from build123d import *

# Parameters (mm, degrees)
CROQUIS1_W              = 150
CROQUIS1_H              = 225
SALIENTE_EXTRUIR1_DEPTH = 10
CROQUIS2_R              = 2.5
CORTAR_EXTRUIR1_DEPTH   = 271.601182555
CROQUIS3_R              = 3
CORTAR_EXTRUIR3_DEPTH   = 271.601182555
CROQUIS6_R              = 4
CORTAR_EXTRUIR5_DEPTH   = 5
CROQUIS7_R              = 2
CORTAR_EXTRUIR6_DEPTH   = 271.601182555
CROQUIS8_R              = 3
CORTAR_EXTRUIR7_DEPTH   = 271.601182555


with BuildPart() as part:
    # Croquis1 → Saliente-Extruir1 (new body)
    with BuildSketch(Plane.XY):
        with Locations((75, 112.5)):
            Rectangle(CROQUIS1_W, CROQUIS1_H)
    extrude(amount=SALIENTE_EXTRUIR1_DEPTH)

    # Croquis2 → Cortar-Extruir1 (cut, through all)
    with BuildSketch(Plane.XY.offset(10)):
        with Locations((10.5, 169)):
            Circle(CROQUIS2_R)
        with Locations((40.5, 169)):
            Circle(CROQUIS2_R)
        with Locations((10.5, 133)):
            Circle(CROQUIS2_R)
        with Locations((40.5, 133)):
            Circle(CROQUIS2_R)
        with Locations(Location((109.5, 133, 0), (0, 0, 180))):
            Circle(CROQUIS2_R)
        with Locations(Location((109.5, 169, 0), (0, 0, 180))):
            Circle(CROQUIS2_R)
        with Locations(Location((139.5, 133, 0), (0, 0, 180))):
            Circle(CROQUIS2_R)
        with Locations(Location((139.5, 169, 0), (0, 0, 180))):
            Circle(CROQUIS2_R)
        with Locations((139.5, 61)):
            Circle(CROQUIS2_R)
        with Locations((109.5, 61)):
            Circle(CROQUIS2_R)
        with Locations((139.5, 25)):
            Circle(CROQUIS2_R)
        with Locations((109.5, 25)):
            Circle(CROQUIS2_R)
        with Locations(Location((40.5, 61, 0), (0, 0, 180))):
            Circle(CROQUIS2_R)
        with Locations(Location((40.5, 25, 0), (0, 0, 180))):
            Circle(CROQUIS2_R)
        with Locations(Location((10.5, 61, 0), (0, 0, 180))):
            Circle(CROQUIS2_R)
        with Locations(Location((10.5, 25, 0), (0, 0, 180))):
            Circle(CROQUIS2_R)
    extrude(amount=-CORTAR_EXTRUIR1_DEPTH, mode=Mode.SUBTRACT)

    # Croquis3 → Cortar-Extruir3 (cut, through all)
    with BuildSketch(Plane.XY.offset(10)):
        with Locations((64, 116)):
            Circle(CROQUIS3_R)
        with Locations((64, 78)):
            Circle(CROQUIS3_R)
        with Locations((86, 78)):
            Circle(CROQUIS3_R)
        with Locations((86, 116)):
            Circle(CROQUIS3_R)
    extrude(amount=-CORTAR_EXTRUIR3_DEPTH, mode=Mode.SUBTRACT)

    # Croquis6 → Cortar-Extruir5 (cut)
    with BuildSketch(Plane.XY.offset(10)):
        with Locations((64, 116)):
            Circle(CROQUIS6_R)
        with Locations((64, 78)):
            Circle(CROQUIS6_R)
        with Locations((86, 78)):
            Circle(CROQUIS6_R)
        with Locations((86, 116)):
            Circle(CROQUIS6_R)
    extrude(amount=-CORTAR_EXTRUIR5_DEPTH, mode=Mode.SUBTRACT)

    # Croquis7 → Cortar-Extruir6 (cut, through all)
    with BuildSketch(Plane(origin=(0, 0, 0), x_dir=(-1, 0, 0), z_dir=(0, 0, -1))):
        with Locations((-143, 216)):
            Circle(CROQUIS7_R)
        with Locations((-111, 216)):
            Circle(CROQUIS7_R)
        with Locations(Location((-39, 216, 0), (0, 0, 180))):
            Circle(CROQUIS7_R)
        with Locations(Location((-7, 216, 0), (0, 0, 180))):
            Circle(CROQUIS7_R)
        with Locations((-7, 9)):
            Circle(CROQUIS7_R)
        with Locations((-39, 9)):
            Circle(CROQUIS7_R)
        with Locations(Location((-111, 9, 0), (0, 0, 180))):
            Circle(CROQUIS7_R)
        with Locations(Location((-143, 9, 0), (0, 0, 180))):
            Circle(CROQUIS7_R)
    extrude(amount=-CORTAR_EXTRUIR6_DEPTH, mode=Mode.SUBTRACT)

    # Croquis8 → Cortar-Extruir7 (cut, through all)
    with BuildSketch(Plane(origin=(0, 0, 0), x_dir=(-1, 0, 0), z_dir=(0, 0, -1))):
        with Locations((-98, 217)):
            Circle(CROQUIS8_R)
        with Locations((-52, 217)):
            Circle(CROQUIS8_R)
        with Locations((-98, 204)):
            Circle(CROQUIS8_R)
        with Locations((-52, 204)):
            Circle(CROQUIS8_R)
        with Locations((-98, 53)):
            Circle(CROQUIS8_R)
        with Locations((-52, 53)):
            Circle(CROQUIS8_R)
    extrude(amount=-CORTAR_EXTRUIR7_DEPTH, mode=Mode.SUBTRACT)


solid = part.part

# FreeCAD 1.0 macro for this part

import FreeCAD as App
import Part
import Sketcher
from FreeCAD import Vector
Q = App.Units.Quantity


def add_polygon(sketch, points):
    """Adds a closed chain of lines whose ends are joined by coincident constraints."""
    first, n = sketch.GeometryCount, len(points)
    for a, b in zip(points, points[1:] + points[:1]):
        sketch.addGeometry(Part.LineSegment(App.Vector(*a, 0), App.Vector(*b, 0)), False)
    for i in range(n):
        sketch.addConstraint(Sketcher.Constraint("Coincident", first + i, 2, first + (i + 1) % n, 1))

doc = App.newDocument("Part")
params = doc.addObject("Spreadsheet::Sheet", "Params")
for row, (alias, value) in enumerate([
    ("sketch1_width", "150 mm"),
    ("sketch1_height", "225 mm"),
    ("pad1_length", "10 mm"),
    ("sketch2_diameter", "5 mm"),
    ("sketch3_diameter", "6 mm"),
    ("sketch4_diameter", "8 mm"),
    ("pocket3_length", "5 mm"),
    ("sketch5_diameter", "4 mm"),
    ("sketch6_diameter", "6 mm"),
], start=1):
    params.set(f"A{row}", alias)
    params.set(f"B{row}", "=" + value)
    params.setAlias(f"B{row}", alias)

body = doc.addObject("PartDesign::Body", "Body")

sketch1 = doc.addObject("Sketcher::SketchObject", "Sketch")
body.addObject(sketch1)
sketch1.AttachmentSupport = (doc.XY_Plane, [""])
sketch1.MapMode = "FlatFace"
add_polygon(sketch1, [(0, 225), (0, 0), (150, 0), (150, 225)])
sketch1.addConstraint(Sketcher.Constraint("Vertical", 0))
sketch1.addConstraint(Sketcher.Constraint("Horizontal", 1))
sketch1.addConstraint(Sketcher.Constraint("Vertical", 2))
sketch1.addConstraint(Sketcher.Constraint("Horizontal", 3))
sketch1.addConstraint(Sketcher.Constraint("Coincident", 0, 2, -1, 1))
sketch1.addConstraint(Sketcher.Constraint("DistanceX", 1, 1, 1, 2, Q("150 mm")))
sketch1.addConstraint(Sketcher.Constraint("DistanceY", 0, 2, 0, 1, Q("225 mm")))
sketch1.setExpression("Constraints[9]", "Params.sketch1_width")
sketch1.setExpression("Constraints[10]", "Params.sketch1_height")
pad1 = doc.addObject("PartDesign::Pad", "Pad")
body.addObject(pad1)
pad1.Profile = sketch1
pad1.setExpression("Length", "Params.pad1_length")

sketch2 = doc.addObject("Sketcher::SketchObject", "Sketch001")
body.addObject(sketch2)
sketch2.AttachmentSupport = (doc.XY_Plane, [""])
sketch2.MapMode = "FlatFace"
sketch2.AttachmentOffset = App.Placement(Vector(0, 0, 10), App.Rotation())
sketch2.addGeometry(Part.Circle(Vector(10.5, 169, 0), Vector(0, 0, 1), 2.5), False)
sketch2.addGeometry(Part.Circle(Vector(40.5, 169, 0), Vector(0, 0, 1), 2.5), False)
sketch2.addGeometry(Part.Circle(Vector(10.5, 133, 0), Vector(0, 0, 1), 2.5), False)
sketch2.addGeometry(Part.Circle(Vector(40.5, 133, 0), Vector(0, 0, 1), 2.5), False)
sketch2.addGeometry(Part.Circle(Vector(109.5, 133, 0), Vector(0, 0, 1), 2.5), False)
sketch2.addGeometry(Part.Circle(Vector(109.5, 169, 0), Vector(0, 0, 1), 2.5), False)
sketch2.addGeometry(Part.Circle(Vector(139.5, 133, 0), Vector(0, 0, 1), 2.5), False)
sketch2.addGeometry(Part.Circle(Vector(139.5, 169, 0), Vector(0, 0, 1), 2.5), False)
sketch2.addGeometry(Part.Circle(Vector(139.5, 61, 0), Vector(0, 0, 1), 2.5), False)
sketch2.addGeometry(Part.Circle(Vector(109.5, 61, 0), Vector(0, 0, 1), 2.5), False)
sketch2.addGeometry(Part.Circle(Vector(139.5, 25, 0), Vector(0, 0, 1), 2.5), False)
sketch2.addGeometry(Part.Circle(Vector(109.5, 25, 0), Vector(0, 0, 1), 2.5), False)
sketch2.addGeometry(Part.Circle(Vector(40.5, 61, 0), Vector(0, 0, 1), 2.5), False)
sketch2.addGeometry(Part.Circle(Vector(40.5, 25, 0), Vector(0, 0, 1), 2.5), False)
sketch2.addGeometry(Part.Circle(Vector(10.5, 61, 0), Vector(0, 0, 1), 2.5), False)
sketch2.addGeometry(Part.Circle(Vector(10.5, 25, 0), Vector(0, 0, 1), 2.5), False)
sketch2.addConstraint(Sketcher.Constraint("Equal", 0, 1))
sketch2.addConstraint(Sketcher.Constraint("Equal", 1, 2))
sketch2.addConstraint(Sketcher.Constraint("Equal", 2, 3))
sketch2.addConstraint(Sketcher.Constraint("Equal", 3, 4))
sketch2.addConstraint(Sketcher.Constraint("Equal", 4, 5))
sketch2.addConstraint(Sketcher.Constraint("Equal", 5, 6))
sketch2.addConstraint(Sketcher.Constraint("Equal", 6, 7))
sketch2.addConstraint(Sketcher.Constraint("Equal", 7, 8))
sketch2.addConstraint(Sketcher.Constraint("Equal", 8, 9))
sketch2.addConstraint(Sketcher.Constraint("Equal", 9, 10))
sketch2.addConstraint(Sketcher.Constraint("Equal", 10, 11))
sketch2.addConstraint(Sketcher.Constraint("Equal", 11, 12))
sketch2.addConstraint(Sketcher.Constraint("Equal", 12, 13))
sketch2.addConstraint(Sketcher.Constraint("Equal", 13, 14))
sketch2.addConstraint(Sketcher.Constraint("Equal", 14, 15))
sketch2.addConstraint(Sketcher.Constraint("Horizontal", 0, 3, 1, 3))
sketch2.addConstraint(Sketcher.Constraint("Horizontal", 2, 3, 3, 3))
sketch2.addConstraint(Sketcher.Constraint("Horizontal", 3, 3, 4, 3))
sketch2.addConstraint(Sketcher.Constraint("Horizontal", 1, 3, 5, 3))
sketch2.addConstraint(Sketcher.Constraint("Horizontal", 4, 3, 6, 3))
sketch2.addConstraint(Sketcher.Constraint("Horizontal", 5, 3, 7, 3))
sketch2.addConstraint(Sketcher.Constraint("Horizontal", 8, 3, 9, 3))
sketch2.addConstraint(Sketcher.Constraint("Horizontal", 10, 3, 11, 3))
sketch2.addConstraint(Sketcher.Constraint("Horizontal", 9, 3, 12, 3))
sketch2.addConstraint(Sketcher.Constraint("Horizontal", 11, 3, 13, 3))
sketch2.addConstraint(Sketcher.Constraint("Horizontal", 12, 3, 14, 3))
sketch2.addConstraint(Sketcher.Constraint("Horizontal", 13, 3, 15, 3))
sketch2.addConstraint(Sketcher.Constraint("Vertical", 0, 3, 2, 3))
sketch2.addConstraint(Sketcher.Constraint("Vertical", 1, 3, 3, 3))
sketch2.addConstraint(Sketcher.Constraint("Vertical", 4, 3, 5, 3))
sketch2.addConstraint(Sketcher.Constraint("Vertical", 6, 3, 7, 3))
sketch2.addConstraint(Sketcher.Constraint("Vertical", 7, 3, 8, 3))
sketch2.addConstraint(Sketcher.Constraint("Vertical", 5, 3, 9, 3))
sketch2.addConstraint(Sketcher.Constraint("Vertical", 8, 3, 10, 3))
sketch2.addConstraint(Sketcher.Constraint("Vertical", 9, 3, 11, 3))
sketch2.addConstraint(Sketcher.Constraint("Vertical", 3, 3, 12, 3))
sketch2.addConstraint(Sketcher.Constraint("Vertical", 12, 3, 13, 3))
sketch2.addConstraint(Sketcher.Constraint("Vertical", 2, 3, 14, 3))
sketch2.addConstraint(Sketcher.Constraint("Vertical", 14, 3, 15, 3))
sketch2.addConstraint(Sketcher.Constraint("Diameter", 0, Q("5 mm")))
sketch2.addConstraint(Sketcher.Constraint("DistanceY", -1, 1, 0, 3, Q("169 mm")))
sketch2.addConstraint(Sketcher.Constraint("DistanceY", -1, 1, 2, 3, Q("133 mm")))
sketch2.addConstraint(Sketcher.Constraint("DistanceY", -1, 1, 8, 3, Q("61 mm")))
sketch2.addConstraint(Sketcher.Constraint("DistanceY", -1, 1, 10, 3, Q("25 mm")))
sketch2.addConstraint(Sketcher.Constraint("DistanceX", 0, 3, 1, 3, Q("30 mm")))
sketch2.addConstraint(Sketcher.Constraint("DistanceX", 3, 3, 4, 3, Q("69 mm")))
sketch2.addConstraint(Sketcher.Constraint("DistanceX", 4, 3, 6, 3, Q("30 mm")))
sketch2.addConstraint(Sketcher.Constraint("DistanceX", -1, 1, 0, 3, Q("10.5 mm")))
sketch2.setExpression("Constraints[39]", "Params.sketch2_diameter")
pocket1 = doc.addObject("PartDesign::Pocket", "Pocket")
body.addObject(pocket1)
pocket1.Profile = sketch2
pocket1.Type = "ThroughAll"

sketch3 = doc.addObject("Sketcher::SketchObject", "Sketch002")
body.addObject(sketch3)
sketch3.AttachmentSupport = (doc.XY_Plane, [""])
sketch3.MapMode = "FlatFace"
sketch3.AttachmentOffset = App.Placement(Vector(0, 0, 10), App.Rotation())
sketch3.addGeometry(Part.Circle(Vector(64, 116, 0), Vector(0, 0, 1), 3), False)
sketch3.addGeometry(Part.Circle(Vector(64, 78, 0), Vector(0, 0, 1), 3), False)
sketch3.addGeometry(Part.Circle(Vector(86, 78, 0), Vector(0, 0, 1), 3), False)
sketch3.addGeometry(Part.Circle(Vector(86, 116, 0), Vector(0, 0, 1), 3), False)
sketch3.addConstraint(Sketcher.Constraint("Equal", 0, 1))
sketch3.addConstraint(Sketcher.Constraint("Equal", 1, 2))
sketch3.addConstraint(Sketcher.Constraint("Equal", 2, 3))
sketch3.addConstraint(Sketcher.Constraint("Horizontal", 1, 3, 2, 3))
sketch3.addConstraint(Sketcher.Constraint("Horizontal", 0, 3, 3, 3))
sketch3.addConstraint(Sketcher.Constraint("Vertical", 0, 3, 1, 3))
sketch3.addConstraint(Sketcher.Constraint("Vertical", 2, 3, 3, 3))
sketch3.addConstraint(Sketcher.Constraint("Diameter", 0, Q("6 mm")))
sketch3.addConstraint(Sketcher.Constraint("DistanceX", -1, 1, 0, 3, Q("64 mm")))
sketch3.addConstraint(Sketcher.Constraint("DistanceY", -1, 1, 0, 3, Q("116 mm")))
sketch3.addConstraint(Sketcher.Constraint("DistanceY", -1, 1, 1, 3, Q("78 mm")))
sketch3.addConstraint(Sketcher.Constraint("DistanceX", -1, 1, 2, 3, Q("86 mm")))
sketch3.setExpression("Constraints[7]", "Params.sketch3_diameter")
pocket2 = doc.addObject("PartDesign::Pocket", "Pocket001")
body.addObject(pocket2)
pocket2.Profile = sketch3
pocket2.Type = "ThroughAll"

sketch4 = doc.addObject("Sketcher::SketchObject", "Sketch003")
body.addObject(sketch4)
sketch4.AttachmentSupport = (doc.XY_Plane, [""])
sketch4.MapMode = "FlatFace"
sketch4.AttachmentOffset = App.Placement(Vector(0, 0, 10), App.Rotation())
sketch4.addGeometry(Part.Circle(Vector(64, 116, 0), Vector(0, 0, 1), 4), False)
sketch4.addGeometry(Part.Circle(Vector(64, 78, 0), Vector(0, 0, 1), 4), False)
sketch4.addGeometry(Part.Circle(Vector(86, 78, 0), Vector(0, 0, 1), 4), False)
sketch4.addGeometry(Part.Circle(Vector(86, 116, 0), Vector(0, 0, 1), 4), False)
sketch4.addConstraint(Sketcher.Constraint("Equal", 0, 1))
sketch4.addConstraint(Sketcher.Constraint("Equal", 1, 2))
sketch4.addConstraint(Sketcher.Constraint("Equal", 2, 3))
sketch4.addConstraint(Sketcher.Constraint("Horizontal", 1, 3, 2, 3))
sketch4.addConstraint(Sketcher.Constraint("Horizontal", 0, 3, 3, 3))
sketch4.addConstraint(Sketcher.Constraint("Vertical", 0, 3, 1, 3))
sketch4.addConstraint(Sketcher.Constraint("Vertical", 2, 3, 3, 3))
sketch4.addConstraint(Sketcher.Constraint("Diameter", 0, Q("8 mm")))
sketch4.addConstraint(Sketcher.Constraint("DistanceX", -1, 1, 0, 3, Q("64 mm")))
sketch4.addConstraint(Sketcher.Constraint("DistanceY", -1, 1, 0, 3, Q("116 mm")))
sketch4.addConstraint(Sketcher.Constraint("DistanceY", -1, 1, 1, 3, Q("78 mm")))
sketch4.addConstraint(Sketcher.Constraint("DistanceX", -1, 1, 2, 3, Q("86 mm")))
sketch4.setExpression("Constraints[7]", "Params.sketch4_diameter")
pocket3 = doc.addObject("PartDesign::Pocket", "Pocket002")
body.addObject(pocket3)
pocket3.Profile = sketch4
pocket3.setExpression("Length", "Params.pocket3_length")

sketch5 = doc.addObject("Sketcher::SketchObject", "Sketch004")
body.addObject(sketch5)
sketch5.AttachmentSupport = (doc.XY_Plane, [""])
sketch5.MapMode = "FlatFace"
sketch5.addGeometry(Part.Circle(Vector(143, 216, 0), Vector(0, 0, 1), 2), False)
sketch5.addGeometry(Part.Circle(Vector(111, 216, 0), Vector(0, 0, 1), 2), False)
sketch5.addGeometry(Part.Circle(Vector(39, 216, 0), Vector(0, 0, 1), 2), False)
sketch5.addGeometry(Part.Circle(Vector(7, 216, 0), Vector(0, 0, 1), 2), False)
sketch5.addGeometry(Part.Circle(Vector(7, 9, 0), Vector(0, 0, 1), 2), False)
sketch5.addGeometry(Part.Circle(Vector(39, 9, 0), Vector(0, 0, 1), 2), False)
sketch5.addGeometry(Part.Circle(Vector(111, 9, 0), Vector(0, 0, 1), 2), False)
sketch5.addGeometry(Part.Circle(Vector(143, 9, 0), Vector(0, 0, 1), 2), False)
sketch5.addConstraint(Sketcher.Constraint("Equal", 0, 1))
sketch5.addConstraint(Sketcher.Constraint("Equal", 1, 2))
sketch5.addConstraint(Sketcher.Constraint("Equal", 2, 3))
sketch5.addConstraint(Sketcher.Constraint("Equal", 3, 4))
sketch5.addConstraint(Sketcher.Constraint("Equal", 4, 5))
sketch5.addConstraint(Sketcher.Constraint("Equal", 5, 6))
sketch5.addConstraint(Sketcher.Constraint("Equal", 6, 7))
sketch5.addConstraint(Sketcher.Constraint("Horizontal", 0, 3, 1, 3))
sketch5.addConstraint(Sketcher.Constraint("Horizontal", 1, 3, 2, 3))
sketch5.addConstraint(Sketcher.Constraint("Horizontal", 2, 3, 3, 3))
sketch5.addConstraint(Sketcher.Constraint("Horizontal", 4, 3, 5, 3))
sketch5.addConstraint(Sketcher.Constraint("Horizontal", 5, 3, 6, 3))
sketch5.addConstraint(Sketcher.Constraint("Horizontal", 6, 3, 7, 3))
sketch5.addConstraint(Sketcher.Constraint("Vertical", 3, 3, 4, 3))
sketch5.addConstraint(Sketcher.Constraint("Vertical", 2, 3, 5, 3))
sketch5.addConstraint(Sketcher.Constraint("Vertical", 1, 3, 6, 3))
sketch5.addConstraint(Sketcher.Constraint("Vertical", 0, 3, 7, 3))
sketch5.addConstraint(Sketcher.Constraint("Diameter", 0, Q("4 mm")))
sketch5.addConstraint(Sketcher.Constraint("DistanceX", -1, 1, 0, 3, Q("143 mm")))
sketch5.addConstraint(Sketcher.Constraint("DistanceY", -1, 1, 0, 3, Q("216 mm")))
sketch5.addConstraint(Sketcher.Constraint("DistanceX", -1, 1, 1, 3, Q("111 mm")))
sketch5.addConstraint(Sketcher.Constraint("DistanceX", -1, 1, 2, 3, Q("39 mm")))
sketch5.addConstraint(Sketcher.Constraint("DistanceX", -1, 1, 3, 3, Q("7 mm")))
sketch5.addConstraint(Sketcher.Constraint("DistanceY", -1, 1, 4, 3, Q("9 mm")))
sketch5.setExpression("Constraints[17]", "Params.sketch5_diameter")
pocket4 = doc.addObject("PartDesign::Pocket", "Pocket003")
body.addObject(pocket4)
pocket4.Profile = sketch5
pocket4.Type = "ThroughAll"
pocket4.Reversed = True

sketch6 = doc.addObject("Sketcher::SketchObject", "Sketch005")
body.addObject(sketch6)
sketch6.AttachmentSupport = (doc.XY_Plane, [""])
sketch6.MapMode = "FlatFace"
sketch6.addGeometry(Part.Circle(Vector(98, 217, 0), Vector(0, 0, 1), 3), False)
sketch6.addGeometry(Part.Circle(Vector(52, 217, 0), Vector(0, 0, 1), 3), False)
sketch6.addGeometry(Part.Circle(Vector(98, 204, 0), Vector(0, 0, 1), 3), False)
sketch6.addGeometry(Part.Circle(Vector(52, 204, 0), Vector(0, 0, 1), 3), False)
sketch6.addGeometry(Part.Circle(Vector(98, 53, 0), Vector(0, 0, 1), 3), False)
sketch6.addGeometry(Part.Circle(Vector(52, 53, 0), Vector(0, 0, 1), 3), False)
sketch6.addConstraint(Sketcher.Constraint("Equal", 0, 1))
sketch6.addConstraint(Sketcher.Constraint("Equal", 1, 2))
sketch6.addConstraint(Sketcher.Constraint("Equal", 2, 3))
sketch6.addConstraint(Sketcher.Constraint("Equal", 3, 4))
sketch6.addConstraint(Sketcher.Constraint("Equal", 4, 5))
sketch6.addConstraint(Sketcher.Constraint("Horizontal", 0, 3, 1, 3))
sketch6.addConstraint(Sketcher.Constraint("Horizontal", 2, 3, 3, 3))
sketch6.addConstraint(Sketcher.Constraint("Horizontal", 4, 3, 5, 3))
sketch6.addConstraint(Sketcher.Constraint("Vertical", 0, 3, 2, 3))
sketch6.addConstraint(Sketcher.Constraint("Vertical", 1, 3, 3, 3))
sketch6.addConstraint(Sketcher.Constraint("Vertical", 2, 3, 4, 3))
sketch6.addConstraint(Sketcher.Constraint("Vertical", 3, 3, 5, 3))
sketch6.addConstraint(Sketcher.Constraint("Diameter", 0, Q("6 mm")))
sketch6.addConstraint(Sketcher.Constraint("DistanceX", -1, 1, 0, 3, Q("98 mm")))
sketch6.addConstraint(Sketcher.Constraint("DistanceY", -1, 1, 0, 3, Q("217 mm")))
sketch6.addConstraint(Sketcher.Constraint("DistanceX", -1, 1, 1, 3, Q("52 mm")))
sketch6.addConstraint(Sketcher.Constraint("DistanceY", -1, 1, 2, 3, Q("204 mm")))
sketch6.addConstraint(Sketcher.Constraint("DistanceY", -1, 1, 4, 3, Q("53 mm")))
sketch6.setExpression("Constraints[12]", "Params.sketch6_diameter")
pocket5 = doc.addObject("PartDesign::Pocket", "Pocket004")
body.addObject(pocket5)
pocket5.Profile = sketch6
pocket5.Type = "ThroughAll"
pocket5.Reversed = True

doc.recompute()
